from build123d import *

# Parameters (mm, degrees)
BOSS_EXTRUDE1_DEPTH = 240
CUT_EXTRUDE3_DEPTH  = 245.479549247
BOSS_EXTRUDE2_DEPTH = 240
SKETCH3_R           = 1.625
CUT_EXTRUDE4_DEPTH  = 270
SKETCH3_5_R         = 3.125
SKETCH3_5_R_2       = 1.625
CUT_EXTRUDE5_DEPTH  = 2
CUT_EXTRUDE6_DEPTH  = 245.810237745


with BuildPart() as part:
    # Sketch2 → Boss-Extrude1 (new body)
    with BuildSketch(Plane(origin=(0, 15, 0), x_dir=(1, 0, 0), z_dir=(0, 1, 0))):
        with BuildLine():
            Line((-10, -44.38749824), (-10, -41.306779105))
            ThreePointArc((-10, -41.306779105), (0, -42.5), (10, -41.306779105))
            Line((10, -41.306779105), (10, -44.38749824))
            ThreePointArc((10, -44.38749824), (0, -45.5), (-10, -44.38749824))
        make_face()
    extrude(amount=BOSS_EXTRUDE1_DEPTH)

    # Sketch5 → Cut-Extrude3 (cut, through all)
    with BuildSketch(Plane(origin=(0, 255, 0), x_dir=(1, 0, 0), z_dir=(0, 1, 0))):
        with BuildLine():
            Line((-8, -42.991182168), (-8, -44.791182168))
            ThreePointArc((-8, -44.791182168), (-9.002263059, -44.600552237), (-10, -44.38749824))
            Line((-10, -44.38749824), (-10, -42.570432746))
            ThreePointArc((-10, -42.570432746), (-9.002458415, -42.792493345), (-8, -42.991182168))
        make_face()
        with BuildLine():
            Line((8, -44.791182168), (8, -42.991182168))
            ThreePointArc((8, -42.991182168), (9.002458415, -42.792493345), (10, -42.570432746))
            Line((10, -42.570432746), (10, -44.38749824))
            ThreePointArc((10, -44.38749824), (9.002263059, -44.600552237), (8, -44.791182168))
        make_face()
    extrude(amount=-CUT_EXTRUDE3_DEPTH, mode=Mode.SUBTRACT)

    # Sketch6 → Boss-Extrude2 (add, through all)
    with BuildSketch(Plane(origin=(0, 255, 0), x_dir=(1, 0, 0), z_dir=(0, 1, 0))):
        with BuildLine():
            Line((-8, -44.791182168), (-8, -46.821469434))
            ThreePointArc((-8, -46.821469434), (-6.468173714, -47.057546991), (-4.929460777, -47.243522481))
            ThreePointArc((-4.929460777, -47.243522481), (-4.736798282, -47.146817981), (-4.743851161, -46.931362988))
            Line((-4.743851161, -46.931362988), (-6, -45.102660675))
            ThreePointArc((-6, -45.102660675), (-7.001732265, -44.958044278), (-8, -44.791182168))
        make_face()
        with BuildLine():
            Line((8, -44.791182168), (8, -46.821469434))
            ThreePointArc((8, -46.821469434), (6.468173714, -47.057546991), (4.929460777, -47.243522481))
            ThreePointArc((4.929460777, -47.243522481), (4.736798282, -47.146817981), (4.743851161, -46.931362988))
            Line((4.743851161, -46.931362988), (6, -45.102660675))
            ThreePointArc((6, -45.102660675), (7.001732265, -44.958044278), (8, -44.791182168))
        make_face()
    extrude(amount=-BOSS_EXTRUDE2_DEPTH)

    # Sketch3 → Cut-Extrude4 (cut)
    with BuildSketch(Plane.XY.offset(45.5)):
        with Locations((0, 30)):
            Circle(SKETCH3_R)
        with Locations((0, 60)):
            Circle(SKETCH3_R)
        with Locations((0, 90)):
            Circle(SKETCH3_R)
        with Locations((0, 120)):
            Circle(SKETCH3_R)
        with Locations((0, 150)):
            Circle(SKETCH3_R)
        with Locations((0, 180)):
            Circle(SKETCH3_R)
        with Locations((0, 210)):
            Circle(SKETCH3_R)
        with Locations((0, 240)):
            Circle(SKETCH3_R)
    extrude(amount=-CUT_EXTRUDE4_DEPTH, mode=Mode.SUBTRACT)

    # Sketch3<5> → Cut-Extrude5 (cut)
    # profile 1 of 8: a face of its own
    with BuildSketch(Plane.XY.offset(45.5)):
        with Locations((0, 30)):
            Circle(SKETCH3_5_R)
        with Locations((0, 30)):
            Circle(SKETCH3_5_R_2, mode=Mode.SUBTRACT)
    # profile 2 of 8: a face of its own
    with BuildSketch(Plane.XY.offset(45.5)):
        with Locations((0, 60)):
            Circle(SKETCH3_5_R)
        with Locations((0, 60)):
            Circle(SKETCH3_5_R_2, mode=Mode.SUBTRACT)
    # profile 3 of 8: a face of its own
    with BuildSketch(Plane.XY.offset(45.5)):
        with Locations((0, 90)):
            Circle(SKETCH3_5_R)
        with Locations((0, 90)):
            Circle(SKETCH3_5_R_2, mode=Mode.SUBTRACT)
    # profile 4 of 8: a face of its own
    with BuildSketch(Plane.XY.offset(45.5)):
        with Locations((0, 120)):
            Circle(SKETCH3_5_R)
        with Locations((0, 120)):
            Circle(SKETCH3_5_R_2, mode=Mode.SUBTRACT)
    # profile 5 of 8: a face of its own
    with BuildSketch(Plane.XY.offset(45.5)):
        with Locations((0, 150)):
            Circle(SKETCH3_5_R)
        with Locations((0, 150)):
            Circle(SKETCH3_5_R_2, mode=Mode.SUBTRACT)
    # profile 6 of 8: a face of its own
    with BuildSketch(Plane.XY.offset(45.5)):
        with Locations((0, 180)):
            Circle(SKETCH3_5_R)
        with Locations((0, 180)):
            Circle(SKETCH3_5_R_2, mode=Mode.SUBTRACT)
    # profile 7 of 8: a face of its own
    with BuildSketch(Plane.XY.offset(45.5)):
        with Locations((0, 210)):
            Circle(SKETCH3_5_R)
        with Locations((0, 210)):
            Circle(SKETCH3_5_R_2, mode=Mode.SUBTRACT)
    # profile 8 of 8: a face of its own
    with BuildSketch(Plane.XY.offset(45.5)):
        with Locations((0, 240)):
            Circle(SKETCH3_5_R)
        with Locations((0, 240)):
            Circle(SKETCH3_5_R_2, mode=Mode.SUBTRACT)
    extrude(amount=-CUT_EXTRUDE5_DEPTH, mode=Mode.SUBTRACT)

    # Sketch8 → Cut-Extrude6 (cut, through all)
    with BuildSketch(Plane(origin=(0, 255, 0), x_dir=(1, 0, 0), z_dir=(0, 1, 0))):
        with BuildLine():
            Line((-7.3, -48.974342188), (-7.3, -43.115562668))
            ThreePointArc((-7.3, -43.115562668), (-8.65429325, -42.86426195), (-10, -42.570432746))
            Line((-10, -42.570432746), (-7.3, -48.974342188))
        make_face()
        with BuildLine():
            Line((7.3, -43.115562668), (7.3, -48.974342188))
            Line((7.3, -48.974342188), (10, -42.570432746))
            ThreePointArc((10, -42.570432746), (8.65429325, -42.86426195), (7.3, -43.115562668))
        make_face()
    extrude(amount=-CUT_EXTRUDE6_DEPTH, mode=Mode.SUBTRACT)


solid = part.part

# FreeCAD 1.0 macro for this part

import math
import FreeCAD as App
import Part
import Sketcher

doc = App.newDocument("Part")
body = doc.addObject("PartDesign::Body", "Body")

sketch1 = body.newObject("Sketcher::SketchObject", "Sketch")
sketch1.AttachmentSupport = (doc.getObject("XZ_Plane"), [""])
sketch1.MapMode = "FlatFace"
sketch1.AttachmentOffset = App.Placement(App.Vector(0, 0, -15), App.Rotation())
sketch1.addGeometry(Part.LineSegment(App.Vector(-10, 41.306779, 0), App.Vector(-10, 44.387498, 0)), False)
sketch1.addGeometry(Part.ArcOfCircle(Part.Circle(App.Vector(0, 0, 0), App.Vector(0, 0, 1), 45.5), math.radians(77.303875), math.radians(102.696125)), False)
sketch1.addGeometry(Part.LineSegment(App.Vector(10, 44.387498, 0), App.Vector(10, 41.306779, 0)), False)
sketch1.addGeometry(Part.ArcOfCircle(Part.Circle(App.Vector(0, 0, 0), App.Vector(0, 0, 1), 42.5), math.radians(76.391039), math.radians(103.608961)), False)
sketch1.addConstraint(Sketcher.Constraint("Coincident", 0, 2, 1, 2))
sketch1.addConstraint(Sketcher.Constraint("Coincident", 1, 1, 2, 1))
sketch1.addConstraint(Sketcher.Constraint("Coincident", 2, 2, 3, 1))
sketch1.addConstraint(Sketcher.Constraint("Coincident", 3, 2, 0, 1))
sketch1.addConstraint(Sketcher.Constraint("Vertical", 0))
sketch1.addConstraint(Sketcher.Constraint("Vertical", 2))
sketch1.addConstraint(Sketcher.Constraint("Coincident", 1, 3, -1, 1))
sketch1.addConstraint(Sketcher.Constraint("Coincident", 3, 3, -1, 1))
sketch1.addConstraint(Sketcher.Constraint("Horizontal", 0, 2, 1, 1))
sketch1.addConstraint(Sketcher.Constraint("Radius", 1, 45.5))
sketch1.addConstraint(Sketcher.Constraint("Radius", 3, 42.5))
sketch1.addConstraint(Sketcher.Constraint("DistanceX", 0, 2, -1, 1, 10.0))
pad1 = body.newObject("PartDesign::Pad", "Pad")
pad1.Profile = sketch1
pad1.Length = 240
pad1.Reversed = True

sketch2 = body.newObject("Sketcher::SketchObject", "Sketch001")
sketch2.AttachmentSupport = (doc.getObject("XZ_Plane"), [""])
sketch2.MapMode = "FlatFace"
sketch2.AttachmentOffset = App.Placement(App.Vector(0, 0, -255), App.Rotation())
sketch2.addGeometry(Part.LineSegment(App.Vector(-8, 44.791182, 0), App.Vector(-8, 42.991182, 0)), False)
sketch2.addGeometry(Part.ArcOfCircle(Part.Circle(App.Vector(0, 0, 0), App.Vector(0, 0, 1), 43.729186), math.radians(100.541297), math.radians(103.219383)), False)
sketch2.addGeometry(Part.LineSegment(App.Vector(-10, 42.570433, 0), App.Vector(-10, 44.387498, 0)), False)
sketch2.addGeometry(Part.ArcOfCircle(Part.Circle(App.Vector(0, 0.000001, 0), App.Vector(0, 0, 1), 45.499999), math.radians(100.126624), math.radians(102.696125)), False)
sketch2.addGeometry(Part.LineSegment(App.Vector(8, 42.991182, 0), App.Vector(8, 44.791182, 0)), False)
sketch2.addGeometry(Part.ArcOfCircle(Part.Circle(App.Vector(0, 0.000001, 0), App.Vector(0, 0, 1), 45.499999), math.radians(77.303875), math.radians(79.873376)), False)
sketch2.addGeometry(Part.LineSegment(App.Vector(10, 44.387498, 0), App.Vector(10, 42.570433, 0)), False)
sketch2.addGeometry(Part.ArcOfCircle(Part.Circle(App.Vector(0, 0, 0), App.Vector(0, 0, 1), 43.729186), math.radians(76.780617), math.radians(79.458703)), False)
sketch2.addConstraint(Sketcher.Constraint("Coincident", 0, 2, 1, 1))
sketch2.addConstraint(Sketcher.Constraint("Coincident", 1, 2, 2, 1))
sketch2.addConstraint(Sketcher.Constraint("Coincident", 2, 2, 3, 2))
sketch2.addConstraint(Sketcher.Constraint("Coincident", 3, 1, 0, 1))
sketch2.addConstraint(Sketcher.Constraint("Coincident", 4, 2, 5, 2))
sketch2.addConstraint(Sketcher.Constraint("Coincident", 5, 1, 6, 1))
sketch2.addConstraint(Sketcher.Constraint("Coincident", 6, 2, 7, 1))
sketch2.addConstraint(Sketcher.Constraint("Coincident", 7, 2, 4, 1))
sketch2.addConstraint(Sketcher.Constraint("Vertical", 0))
sketch2.addConstraint(Sketcher.Constraint("Vertical", 2))
sketch2.addConstraint(Sketcher.Constraint("Vertical", 4))
sketch2.addConstraint(Sketcher.Constraint("Vertical", 6))
sketch2.addConstraint(Sketcher.Constraint("Coincident", 1, 3, -1, 1))
sketch2.addConstraint(Sketcher.Constraint("Coincident", 3, 3, -1, 1))
sketch2.addConstraint(Sketcher.Constraint("Coincident", 5, 3, -1, 1))
sketch2.addConstraint(Sketcher.Constraint("Coincident", 7, 3, -1, 1))
sketch2.addConstraint(Sketcher.Constraint("Equal", 3, 5))
sketch2.addConstraint(Sketcher.Constraint("Equal", 1, 7))
sketch2.addConstraint(Sketcher.Constraint("Horizontal", 3, 1, 4, 2))
sketch2.addConstraint(Sketcher.Constraint("Horizontal", 2, 2, 5, 1))
sketch2.addConstraint(Sketcher.Constraint("Radius", 3, 45.499999))
sketch2.addConstraint(Sketcher.Constraint("DistanceY", 0, 2, 0, 1, 1.8))
sketch2.addConstraint(Sketcher.Constraint("DistanceX", 0, 2, -1, 1, 8.0))
sketch2.addConstraint(Sketcher.Constraint("DistanceX", 1, 2, -1, 1, 10.0))
pocket1 = body.newObject("PartDesign::Pocket", "Pocket")
pocket1.Profile = sketch2
pocket1.Type = "ThroughAll"
pocket1.Reversed = True

sketch3 = body.newObject("Sketcher::SketchObject", "Sketch002")
sketch3.AttachmentSupport = (doc.getObject("XZ_Plane"), [""])
sketch3.MapMode = "FlatFace"
sketch3.AttachmentOffset = App.Placement(App.Vector(0, 0, -255), App.Rotation())
sketch3.addGeometry(Part.LineSegment(App.Vector(-8, 44.791182, 0), App.Vector(-8, 46.821469, 0)), False)
sketch3.addGeometry(Part.ArcOfCircle(Part.Circle(App.Vector(0, 0.000001, 0), App.Vector(0, 0, 1), 47.499999), math.radians(95.956773), math.radians(99.696028)), False)
sketch3.addGeometry(Part.ArcOfCircle(Part.Circle(App.Vector(-4.908705, 47.044602, 0), App.Vector(0, 0, 1), 0.2), math.radians(-34.485454), math.radians(95.956773)), False)
sketch3.addGeometry(Part.LineSegment(App.Vector(-4.743851, 46.931363, 0), App.Vector(-6, 45.102661, 0)), False)
sketch3.addGeometry(Part.ArcOfCircle(Part.Circle(App.Vector(0, 0.000001, 0), App.Vector(0, 0, 1), 45.499999), math.radians(97.577558), math.radians(100.126624)), False)
sketch3.addGeometry(Part.LineSegment(App.Vector(8, 46.821469, 0), App.Vector(8, 44.791182, 0)), False)
sketch3.addGeometry(Part.ArcOfCircle(Part.Circle(App.Vector(0, 0.000001, 0), App.Vector(0, 0, 1), 45.499999), math.radians(79.873376), math.radians(82.422442)), False)
sketch3.addGeometry(Part.LineSegment(App.Vector(6, 45.102661, 0), App.Vector(4.743851, 46.931363, 0)), False)
sketch3.addGeometry(Part.ArcOfCircle(Part.Circle(App.Vector(4.908705, 47.044602, 0), App.Vector(0, 0, 1), 0.2), math.radians(84.043227), math.radians(214.485454)), False)
sketch3.addGeometry(Part.ArcOfCircle(Part.Circle(App.Vector(0, 0.000001, 0), App.Vector(0, 0, 1), 47.499999), math.radians(80.303972), math.radians(84.043227)), False)
sketch3.addConstraint(Sketcher.Constraint("Coincident", 0, 2, 1, 2))
sketch3.addConstraint(Sketcher.Constraint("Tangent", 1, 1, 2, 2))
sketch3.addConstraint(Sketcher.Constraint("Tangent", 2, 1, 3, 1))
sketch3.addConstraint(Sketcher.Constraint("Coincident", 3, 2, 4, 1))
sketch3.addConstraint(Sketcher.Constraint("Coincident", 4, 2, 0, 1))
sketch3.addConstraint(Sketcher.Constraint("Coincident", 5, 2, 6, 1))
sketch3.addConstraint(Sketcher.Constraint("Coincident", 6, 2, 7, 1))
sketch3.addConstraint(Sketcher.Constraint("Tangent", 7, 2, 8, 2))
sketch3.addConstraint(Sketcher.Constraint("Tangent", 8, 1, 9, 2))
sketch3.addConstraint(Sketcher.Constraint("Coincident", 9, 1, 5, 1))
sketch3.addConstraint(Sketcher.Constraint("Vertical", 0))
sketch3.addConstraint(Sketcher.Constraint("Vertical", 5))
sketch3.addConstraint(Sketcher.Constraint("Coincident", 1, 3, -1, 1))
sketch3.addConstraint(Sketcher.Constraint("Coincident", 4, 3, -1, 1))
sketch3.addConstraint(Sketcher.Constraint("Coincident", 6, 3, -1, 1))
sketch3.addConstraint(Sketcher.Constraint("Coincident", 9, 3, -1, 1))
sketch3.addConstraint(Sketcher.Constraint("Equal", 4, 6))
sketch3.addConstraint(Sketcher.Constraint("Equal", 2, 8))
sketch3.addConstraint(Sketcher.Constraint("Equal", 1, 9))
sketch3.addConstraint(Sketcher.Constraint("Symmetric", 2, 1, 7, 2, -2))
sketch3.addConstraint(Sketcher.Constraint("Horizontal", 4, 2, 5, 2))
sketch3.addConstraint(Sketcher.Constraint("Radius", 1, 47.499999))
sketch3.addConstraint(Sketcher.Constraint("Radius", 2, 0.2))
sketch3.addConstraint(Sketcher.Constraint("Radius", 4, 45.499999))
sketch3.addConstraint(Sketcher.Constraint("DistanceX", 0, 2, -1, 1, 8.0))
sketch3.addConstraint(Sketcher.Constraint("DistanceX", 3, 2, -1, 1, 6.0))
sketch3.addConstraint(Sketcher.Constraint("DistanceY", 1, 3, 2, 3, 47.044602))
pad2 = body.newObject("PartDesign::Pad", "Pad001")
pad2.Profile = sketch3
pad2.Length = 240

sketch4 = body.newObject("Sketcher::SketchObject", "Sketch003")
sketch4.AttachmentSupport = (doc.getObject("XY_Plane"), [""])
sketch4.MapMode = "FlatFace"
sketch4.AttachmentOffset = App.Placement(App.Vector(0, 0, 45.5), App.Rotation())
sketch4.addGeometry(Part.Circle(App.Vector(0, 30, 0), App.Vector(0, 0, 1), 1.625), False)
sketch4.addGeometry(Part.Circle(App.Vector(0, 60, 0), App.Vector(0, 0, 1), 1.625), False)
sketch4.addGeometry(Part.Circle(App.Vector(0, 90, 0), App.Vector(0, 0, 1), 1.625), False)
sketch4.addGeometry(Part.Circle(App.Vector(0, 120, 0), App.Vector(0, 0, 1), 1.625), False)
sketch4.addGeometry(Part.Circle(App.Vector(0, 150, 0), App.Vector(0, 0, 1), 1.625), False)
sketch4.addGeometry(Part.Circle(App.Vector(0, 180, 0), App.Vector(0, 0, 1), 1.625), False)
sketch4.addGeometry(Part.Circle(App.Vector(0, 210, 0), App.Vector(0, 0, 1), 1.625), False)
sketch4.addGeometry(Part.Circle(App.Vector(0, 240, 0), App.Vector(0, 0, 1), 1.625), False)
sketch4.addConstraint(Sketcher.Constraint("Equal", 0, 1))
sketch4.addConstraint(Sketcher.Constraint("Equal", 1, 2))
sketch4.addConstraint(Sketcher.Constraint("Equal", 2, 3))
sketch4.addConstraint(Sketcher.Constraint("Equal", 3, 4))
sketch4.addConstraint(Sketcher.Constraint("Equal", 4, 5))
sketch4.addConstraint(Sketcher.Constraint("Equal", 5, 6))
sketch4.addConstraint(Sketcher.Constraint("Equal", 6, 7))
sketch4.addConstraint(Sketcher.Constraint("PointOnObject", 0, 3, -2))
sketch4.addConstraint(Sketcher.Constraint("PointOnObject", 1, 3, -2))
sketch4.addConstraint(Sketcher.Constraint("PointOnObject", 2, 3, -2))
sketch4.addConstraint(Sketcher.Constraint("PointOnObject", 3, 3, -2))
sketch4.addConstraint(Sketcher.Constraint("PointOnObject", 4, 3, -2))
sketch4.addConstraint(Sketcher.Constraint("PointOnObject", 5, 3, -2))
sketch4.addConstraint(Sketcher.Constraint("PointOnObject", 6, 3, -2))
sketch4.addConstraint(Sketcher.Constraint("PointOnObject", 7, 3, -2))
sketch4.addConstraint(Sketcher.Constraint("Diameter", 0, 3.25))
sketch4.addConstraint(Sketcher.Constraint("DistanceY", -1, 1, 0, 3, 30.0))
sketch4.addConstraint(Sketcher.Constraint("DistanceY", -1, 1, 1, 3, 60.0))
sketch4.addConstraint(Sketcher.Constraint("DistanceY", -1, 1, 2, 3, 90.0))
sketch4.addConstraint(Sketcher.Constraint("DistanceY", -1, 1, 3, 3, 120.0))
sketch4.addConstraint(Sketcher.Constraint("DistanceY", -1, 1, 4, 3, 150.0))
sketch4.addConstraint(Sketcher.Constraint("DistanceY", -1, 1, 5, 3, 180.0))
sketch4.addConstraint(Sketcher.Constraint("DistanceY", -1, 1, 6, 3, 210.0))
sketch4.addConstraint(Sketcher.Constraint("DistanceY", -1, 1, 7, 3, 240.0))
pocket2 = body.newObject("PartDesign::Pocket", "Pocket001")
pocket2.Profile = sketch4
pocket2.Length = 270

sketch5 = body.newObject("Sketcher::SketchObject", "Sketch004")
sketch5.AttachmentSupport = (doc.getObject("XY_Plane"), [""])
sketch5.MapMode = "FlatFace"
sketch5.AttachmentOffset = App.Placement(App.Vector(0, 0, 45.5), App.Rotation())
sketch5.addGeometry(Part.Circle(App.Vector(0, 30, 0), App.Vector(0, 0, 1), 3.125), False)
sketch5.addGeometry(Part.Circle(App.Vector(0, 30, 0), App.Vector(0, 0, 1), 1.625), False)
sketch5.addGeometry(Part.Circle(App.Vector(0, 60, 0), App.Vector(0, 0, 1), 3.125), False)
sketch5.addGeometry(Part.Circle(App.Vector(0, 60, 0), App.Vector(0, 0, 1), 1.625), False)
sketch5.addGeometry(Part.Circle(App.Vector(0, 90, 0), App.Vector(0, 0, 1), 3.125), False)
sketch5.addGeometry(Part.Circle(App.Vector(0, 90, 0), App.Vector(0, 0, 1), 1.625), False)
sketch5.addGeometry(Part.Circle(App.Vector(0, 120, 0), App.Vector(0, 0, 1), 3.125), False)
sketch5.addGeometry(Part.Circle(App.Vector(0, 120, 0), App.Vector(0, 0, 1), 1.625), False)
sketch5.addGeometry(Part.Circle(App.Vector(0, 150, 0), App.Vector(0, 0, 1), 3.125), False)
sketch5.addGeometry(Part.Circle(App.Vector(0, 150, 0), App.Vector(0, 0, 1), 1.625), False)
sketch5.addGeometry(Part.Circle(App.Vector(0, 180, 0), App.Vector(0, 0, 1), 3.125), False)
sketch5.addGeometry(Part.Circle(App.Vector(0, 180, 0), App.Vector(0, 0, 1), 1.625), False)
sketch5.addGeometry(Part.Circle(App.Vector(0, 210, 0), App.Vector(0, 0, 1), 3.125), False)
sketch5.addGeometry(Part.Circle(App.Vector(0, 210, 0), App.Vector(0, 0, 1), 1.625), False)
sketch5.addGeometry(Part.Circle(App.Vector(0, 240, 0), App.Vector(0, 0, 1), 3.125), False)
sketch5.addGeometry(Part.Circle(App.Vector(0, 240, 0), App.Vector(0, 0, 1), 1.625), False)
sketch5.addConstraint(Sketcher.Constraint("Coincident", 1, 3, 0, 3))
sketch5.addConstraint(Sketcher.Constraint("Coincident", 3, 3, 2, 3))
sketch5.addConstraint(Sketcher.Constraint("Coincident", 5, 3, 4, 3))
sketch5.addConstraint(Sketcher.Constraint("Coincident", 7, 3, 6, 3))
sketch5.addConstraint(Sketcher.Constraint("Coincident", 9, 3, 8, 3))
sketch5.addConstraint(Sketcher.Constraint("Coincident", 11, 3, 10, 3))
sketch5.addConstraint(Sketcher.Constraint("Coincident", 13, 3, 12, 3))
sketch5.addConstraint(Sketcher.Constraint("Coincident", 15, 3, 14, 3))
sketch5.addConstraint(Sketcher.Constraint("Equal", 0, 2))
sketch5.addConstraint(Sketcher.Constraint("Equal", 1, 3))
sketch5.addConstraint(Sketcher.Constraint("Equal", 2, 4))
sketch5.addConstraint(Sketcher.Constraint("Equal", 3, 5))
sketch5.addConstraint(Sketcher.Constraint("Equal", 4, 6))
sketch5.addConstraint(Sketcher.Constraint("Equal", 5, 7))
sketch5.addConstraint(Sketcher.Constraint("Equal", 6, 8))
sketch5.addConstraint(Sketcher.Constraint("Equal", 7, 9))
sketch5.addConstraint(Sketcher.Constraint("Equal", 8, 10))
sketch5.addConstraint(Sketcher.Constraint("Equal", 9, 11))
sketch5.addConstraint(Sketcher.Constraint("Equal", 10, 12))
sketch5.addConstraint(Sketcher.Constraint("Equal", 11, 13))
sketch5.addConstraint(Sketcher.Constraint("Equal", 12, 14))
sketch5.addConstraint(Sketcher.Constraint("Equal", 13, 15))
sketch5.addConstraint(Sketcher.Constraint("PointOnObject", 0, 3, -2))
sketch5.addConstraint(Sketcher.Constraint("PointOnObject", 2, 3, -2))
sketch5.addConstraint(Sketcher.Constraint("PointOnObject", 4, 3, -2))
sketch5.addConstraint(Sketcher.Constraint("PointOnObject", 6, 3, -2))
sketch5.addConstraint(Sketcher.Constraint("PointOnObject", 8, 3, -2))
sketch5.addConstraint(Sketcher.Constraint("PointOnObject", 10, 3, -2))
sketch5.addConstraint(Sketcher.Constraint("PointOnObject", 12, 3, -2))
sketch5.addConstraint(Sketcher.Constraint("PointOnObject", 14, 3, -2))
sketch5.addConstraint(Sketcher.Constraint("Diameter", 0, 6.25))
sketch5.addConstraint(Sketcher.Constraint("Diameter", 1, 3.25))
sketch5.addConstraint(Sketcher.Constraint("DistanceY", -1, 1, 0, 3, 30.0))
sketch5.addConstraint(Sketcher.Constraint("DistanceY", -1, 1, 2, 3, 60.0))
sketch5.addConstraint(Sketcher.Constraint("DistanceY", -1, 1, 4, 3, 90.0))
sketch5.addConstraint(Sketcher.Constraint("DistanceY", -1, 1, 6, 3, 120.0))
sketch5.addConstraint(Sketcher.Constraint("DistanceY", -1, 1, 8, 3, 150.0))
sketch5.addConstraint(Sketcher.Constraint("DistanceY", -1, 1, 10, 3, 180.0))
sketch5.addConstraint(Sketcher.Constraint("DistanceY", -1, 1, 12, 3, 210.0))
sketch5.addConstraint(Sketcher.Constraint("DistanceY", -1, 1, 14, 3, 240.0))
pocket3 = body.newObject("PartDesign::Pocket", "Pocket002")
pocket3.Profile = sketch5
pocket3.Length = 2

sketch6 = body.newObject("Sketcher::SketchObject", "Sketch005")
sketch6.AttachmentSupport = (doc.getObject("XZ_Plane"), [""])
sketch6.MapMode = "FlatFace"
sketch6.AttachmentOffset = App.Placement(App.Vector(0, 0, -255), App.Rotation())
sketch6.addGeometry(Part.LineSegment(App.Vector(-7.3, 48.974342, 0), App.Vector(-7.3, 43.115563, 0)), False)
sketch6.addGeometry(Part.ArcOfCircle(Part.Circle(App.Vector(0, 0, 0), App.Vector(0, 0, 1), 43.729187), math.radians(99.609752), math.radians(103.219383)), False)
sketch6.addGeometry(Part.LineSegment(App.Vector(-10, 42.570433, 0), App.Vector(-7.3, 48.974342, 0)), False)
sketch6.addGeometry(Part.LineSegment(App.Vector(7.3, 43.115563, 0), App.Vector(7.3, 48.974342, 0)), False)
sketch6.addGeometry(Part.LineSegment(App.Vector(7.3, 48.974342, 0), App.Vector(10, 42.570433, 0)), False)
sketch6.addGeometry(Part.ArcOfCircle(Part.Circle(App.Vector(0, 0, 0), App.Vector(0, 0, 1), 43.729187), math.radians(76.780617), math.radians(80.390248)), False)
sketch6.addConstraint(Sketcher.Constraint("Coincident", 0, 2, 1, 1))
sketch6.addConstraint(Sketcher.Constraint("Coincident", 1, 2, 2, 1))
sketch6.addConstraint(Sketcher.Constraint("Coincident", 2, 2, 0, 1))
sketch6.addConstraint(Sketcher.Constraint("Coincident", 3, 2, 4, 1))
sketch6.addConstraint(Sketcher.Constraint("Coincident", 4, 2, 5, 1))
sketch6.addConstraint(Sketcher.Constraint("Coincident", 5, 2, 3, 1))
sketch6.addConstraint(Sketcher.Constraint("Vertical", 0))
sketch6.addConstraint(Sketcher.Constraint("Vertical", 3))
sketch6.addConstraint(Sketcher.Constraint("Coincident", 1, 3, -1, 1))
sketch6.addConstraint(Sketcher.Constraint("Coincident", 5, 3, -1, 1))
sketch6.addConstraint(Sketcher.Constraint("Equal", 1, 5))
sketch6.addConstraint(Sketcher.Constraint("Symmetric", 2, 2, 3, 2, -2))
sketch6.addConstraint(Sketcher.Constraint("Horizontal", 1, 2, 4, 2))
sketch6.addConstraint(Sketcher.Constraint("DistanceX", 1, 2, -1, 1, 10.0))
sketch6.addConstraint(Sketcher.Constraint("DistanceX", 0, 2, -1, 1, 7.3))
sketch6.addConstraint(Sketcher.Constraint("Radius", 1, 43.729187))
sketch6.addConstraint(Sketcher.Constraint("DistanceY", 0, 2, 0, 1, 5.85878))
pocket4 = body.newObject("PartDesign::Pocket", "Pocket003")
pocket4.Profile = sketch6
pocket4.Type = "ThroughAll"
pocket4.Reversed = True

doc.recompute()
